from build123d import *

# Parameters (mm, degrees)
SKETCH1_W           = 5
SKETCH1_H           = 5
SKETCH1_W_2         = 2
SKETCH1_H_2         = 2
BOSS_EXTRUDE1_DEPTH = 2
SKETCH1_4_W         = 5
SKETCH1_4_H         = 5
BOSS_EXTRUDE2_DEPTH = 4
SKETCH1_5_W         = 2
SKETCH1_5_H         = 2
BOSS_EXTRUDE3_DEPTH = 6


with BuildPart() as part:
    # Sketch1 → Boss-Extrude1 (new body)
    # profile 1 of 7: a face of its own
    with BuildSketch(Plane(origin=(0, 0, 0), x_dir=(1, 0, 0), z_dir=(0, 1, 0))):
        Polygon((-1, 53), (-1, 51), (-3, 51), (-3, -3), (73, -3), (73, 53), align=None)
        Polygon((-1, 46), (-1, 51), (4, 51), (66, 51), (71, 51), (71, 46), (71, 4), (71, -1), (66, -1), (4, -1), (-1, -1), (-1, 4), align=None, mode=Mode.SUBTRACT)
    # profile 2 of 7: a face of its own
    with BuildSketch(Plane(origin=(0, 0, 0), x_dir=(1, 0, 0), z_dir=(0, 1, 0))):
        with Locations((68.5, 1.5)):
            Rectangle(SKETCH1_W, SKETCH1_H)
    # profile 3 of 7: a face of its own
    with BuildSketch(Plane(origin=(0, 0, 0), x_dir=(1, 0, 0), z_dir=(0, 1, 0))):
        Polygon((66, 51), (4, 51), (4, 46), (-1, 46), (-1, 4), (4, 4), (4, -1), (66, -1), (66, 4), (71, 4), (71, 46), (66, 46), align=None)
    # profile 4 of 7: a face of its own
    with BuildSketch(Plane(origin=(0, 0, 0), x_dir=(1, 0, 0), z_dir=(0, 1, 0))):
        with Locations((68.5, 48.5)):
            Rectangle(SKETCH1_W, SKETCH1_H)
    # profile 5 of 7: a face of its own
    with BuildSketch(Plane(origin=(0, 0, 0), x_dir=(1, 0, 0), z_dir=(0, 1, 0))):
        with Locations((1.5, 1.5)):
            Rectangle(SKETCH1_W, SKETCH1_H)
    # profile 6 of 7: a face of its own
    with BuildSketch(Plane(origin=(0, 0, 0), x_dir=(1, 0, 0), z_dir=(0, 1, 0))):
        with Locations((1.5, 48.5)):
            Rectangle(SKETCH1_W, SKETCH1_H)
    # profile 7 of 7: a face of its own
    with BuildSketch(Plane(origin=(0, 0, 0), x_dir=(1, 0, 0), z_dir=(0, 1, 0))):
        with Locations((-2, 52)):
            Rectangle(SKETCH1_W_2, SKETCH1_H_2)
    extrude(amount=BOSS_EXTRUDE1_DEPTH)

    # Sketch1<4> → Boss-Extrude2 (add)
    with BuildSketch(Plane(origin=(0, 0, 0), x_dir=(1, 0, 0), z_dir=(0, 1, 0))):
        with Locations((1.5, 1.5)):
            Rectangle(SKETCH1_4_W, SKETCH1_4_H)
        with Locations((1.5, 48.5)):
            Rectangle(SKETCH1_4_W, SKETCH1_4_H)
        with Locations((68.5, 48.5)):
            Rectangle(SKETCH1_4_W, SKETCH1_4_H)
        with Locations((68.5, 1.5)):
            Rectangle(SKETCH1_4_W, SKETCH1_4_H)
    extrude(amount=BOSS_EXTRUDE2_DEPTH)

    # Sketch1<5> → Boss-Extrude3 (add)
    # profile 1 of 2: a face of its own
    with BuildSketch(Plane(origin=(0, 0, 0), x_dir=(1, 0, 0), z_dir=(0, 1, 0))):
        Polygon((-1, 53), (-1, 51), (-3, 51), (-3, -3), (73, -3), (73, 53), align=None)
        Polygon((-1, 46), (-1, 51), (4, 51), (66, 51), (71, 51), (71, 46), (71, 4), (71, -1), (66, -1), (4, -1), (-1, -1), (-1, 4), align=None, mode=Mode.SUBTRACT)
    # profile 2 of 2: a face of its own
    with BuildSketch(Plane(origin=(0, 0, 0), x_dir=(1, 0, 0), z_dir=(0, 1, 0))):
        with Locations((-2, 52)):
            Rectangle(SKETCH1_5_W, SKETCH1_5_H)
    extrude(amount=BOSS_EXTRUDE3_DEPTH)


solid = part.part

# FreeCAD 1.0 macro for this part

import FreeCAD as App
import Part
import Sketcher
from FreeCAD import Vector

doc = App.newDocument("Part")
body = doc.addObject("PartDesign::Body", "Body")

# Sketch on XZ plane
sketch1 = body.newObject("Sketcher::SketchObject", "Sketch")
sketch1.AttachmentSupport = (doc.getObject("XZ_Plane"), [""])
sketch1.MapMode = "FlatFace"
sketch1.addGeometry([
    Part.LineSegment(Vector(73, 3, 0), Vector(73, -53, 0)),
    Part.LineSegment(Vector(73, -53, 0), Vector(-3, -53, 0)),
    Part.LineSegment(Vector(-3, -53, 0), Vector(-3, 3, 0)),
    Part.LineSegment(Vector(-3, 3, 0), Vector(73, 3, 0)),
], False)
sketch1.addConstraint([
    Sketcher.Constraint("Coincident", 0, 2, 1, 1),
    Sketcher.Constraint("Coincident", 1, 2, 2, 1),
    Sketcher.Constraint("Coincident", 2, 2, 3, 1),
    Sketcher.Constraint("Coincident", 3, 2, 0, 1),
    Sketcher.Constraint("Vertical", 0),
    Sketcher.Constraint("Horizontal", 1),
    Sketcher.Constraint("Vertical", 2),
    Sketcher.Constraint("Horizontal", 3),
    Sketcher.Constraint("DistanceX", 1, 2, 1, 1, 76.0),
    Sketcher.Constraint("DistanceY", 0, 2, 0, 1, 56.0),
    Sketcher.Constraint("DistanceX", -1, 1, 0, 2, 73.0),
    Sketcher.Constraint("DistanceY", 0, 2, -1, 1, 53.0),
])
pad1 = body.newObject("PartDesign::Pad", "Pad")
pad1.Profile = sketch1
pad1.Length = 2
pad1.Reversed = True

# Sketch on XZ plane
sketch2 = body.newObject("Sketcher::SketchObject", "Sketch001")
sketch2.AttachmentSupport = (doc.getObject("XZ_Plane"), [""])
sketch2.MapMode = "FlatFace"
sketch2.addGeometry([
    Part.LineSegment(Vector(-1, -4, 0), Vector(-1, 1, 0)),  # 0
    Part.LineSegment(Vector(-1, 1, 0), Vector(4, 1, 0)),  # 1
    Part.LineSegment(Vector(4, 1, 0), Vector(4, -4, 0)),  # 2
    Part.LineSegment(Vector(4, -4, 0), Vector(-1, -4, 0)),  # 3
    Part.LineSegment(Vector(-1, -51, 0), Vector(-1, -46, 0)),  # 4
    Part.LineSegment(Vector(-1, -46, 0), Vector(4, -46, 0)),  # 5
    Part.LineSegment(Vector(4, -46, 0), Vector(4, -51, 0)),  # 6
    Part.LineSegment(Vector(4, -51, 0), Vector(-1, -51, 0)),  # 7
    Part.LineSegment(Vector(66, -51, 0), Vector(66, -46, 0)),  # 8
    Part.LineSegment(Vector(66, -46, 0), Vector(71, -46, 0)),  # 9
    Part.LineSegment(Vector(71, -46, 0), Vector(71, -51, 0)),  # 10
    Part.LineSegment(Vector(71, -51, 0), Vector(66, -51, 0)),  # 11
    Part.LineSegment(Vector(66, -4, 0), Vector(66, 1, 0)),  # 12
    Part.LineSegment(Vector(66, 1, 0), Vector(71, 1, 0)),  # 13
    Part.LineSegment(Vector(71, 1, 0), Vector(71, -4, 0)),  # 14
    Part.LineSegment(Vector(71, -4, 0), Vector(66, -4, 0)),  # 15
], False)
sketch2.addConstraint([
    Sketcher.Constraint("Coincident", 0, 2, 1, 1),
    Sketcher.Constraint("Coincident", 1, 2, 2, 1),
    Sketcher.Constraint("Coincident", 2, 2, 3, 1),
    Sketcher.Constraint("Coincident", 3, 2, 0, 1),
    Sketcher.Constraint("Coincident", 4, 2, 5, 1),
    Sketcher.Constraint("Coincident", 5, 2, 6, 1),
    Sketcher.Constraint("Coincident", 6, 2, 7, 1),
    Sketcher.Constraint("Coincident", 7, 2, 4, 1),
    Sketcher.Constraint("Coincident", 8, 2, 9, 1),
    Sketcher.Constraint("Coincident", 9, 2, 10, 1),
    Sketcher.Constraint("Coincident", 10, 2, 11, 1),
    Sketcher.Constraint("Coincident", 11, 2, 8, 1),
    Sketcher.Constraint("Coincident", 12, 2, 13, 1),
    Sketcher.Constraint("Coincident", 13, 2, 14, 1),
    Sketcher.Constraint("Coincident", 14, 2, 15, 1),
    Sketcher.Constraint("Coincident", 15, 2, 12, 1),
    Sketcher.Constraint("Vertical", 0),
    Sketcher.Constraint("Horizontal", 1),
    Sketcher.Constraint("Vertical", 2),
    Sketcher.Constraint("Horizontal", 3),
    Sketcher.Constraint("Vertical", 4),
    Sketcher.Constraint("Horizontal", 5),
    Sketcher.Constraint("Vertical", 6),
    Sketcher.Constraint("Horizontal", 7),
    Sketcher.Constraint("Vertical", 8),
    Sketcher.Constraint("Horizontal", 9),
    Sketcher.Constraint("Vertical", 10),
    Sketcher.Constraint("Horizontal", 11),
    Sketcher.Constraint("Vertical", 12),
    Sketcher.Constraint("Horizontal", 13),
    Sketcher.Constraint("Vertical", 14),
    Sketcher.Constraint("Horizontal", 15),
    Sketcher.Constraint("Horizontal", 5, 2, 8, 2),
    Sketcher.Constraint("Horizontal", 7, 2, 10, 2),
    Sketcher.Constraint("Horizontal", 1, 2, 12, 2),
    Sketcher.Constraint("Horizontal", 3, 2, 14, 2),
    Sketcher.Constraint("Vertical", 3, 2, 4, 2),
    Sketcher.Constraint("Vertical", 2, 2, 5, 2),
    Sketcher.Constraint("Vertical", 11, 2, 12, 2),
    Sketcher.Constraint("Vertical", 10, 2, 13, 2),
    Sketcher.Constraint("Equal", 7, 9),
    Sketcher.Constraint("Equal", 15, 0),
    Sketcher.Constraint("Equal", 2, 4),
    Sketcher.Constraint("DistanceX", 1, 1, 1, 2, 5.0),
    Sketcher.Constraint("DistanceX", 0, 2, -1, 1, 1.0),
    Sketcher.Constraint("DistanceY", -1, 1, 0, 2, 1.0),
    Sketcher.Constraint("DistanceY", 4, 2, -1, 1, 46.0),
    Sketcher.Constraint("DistanceX", -1, 1, 8, 2, 66.0),
])
pad2 = body.newObject("PartDesign::Pad", "Pad001")
pad2.Profile = sketch2
pad2.Length = 4
pad2.Reversed = True

# Sketch on XZ plane
sketch3 = body.newObject("Sketcher::SketchObject", "Sketch002")
sketch3.AttachmentSupport = (doc.getObject("XZ_Plane"), [""])
sketch3.MapMode = "FlatFace"
sketch3.addGeometry([
    Part.LineSegment(Vector(73, 3, 0), Vector(73, -53, 0)),  # 0
    Part.LineSegment(Vector(73, -53, 0), Vector(-3, -53, 0)),  # 1
    Part.LineSegment(Vector(-3, -53, 0), Vector(-3, 3, 0)),  # 2
    Part.LineSegment(Vector(-3, 3, 0), Vector(73, 3, 0)),  # 3
    Part.LineSegment(Vector(-1, 1, 0), Vector(-1, -51, 0)),  # 4
    Part.LineSegment(Vector(-1, -51, 0), Vector(71, -51, 0)),  # 5
    Part.LineSegment(Vector(71, -51, 0), Vector(71, 1, 0)),  # 6
    Part.LineSegment(Vector(71, 1, 0), Vector(-1, 1, 0)),  # 7
], False)
sketch3.addConstraint([
    Sketcher.Constraint("Coincident", 0, 2, 1, 1),
    Sketcher.Constraint("Coincident", 1, 2, 2, 1),
    Sketcher.Constraint("Coincident", 2, 2, 3, 1),
    Sketcher.Constraint("Coincident", 3, 2, 0, 1),
    Sketcher.Constraint("Coincident", 4, 2, 5, 1),
    Sketcher.Constraint("Coincident", 5, 2, 6, 1),
    Sketcher.Constraint("Coincident", 6, 2, 7, 1),
    Sketcher.Constraint("Coincident", 7, 2, 4, 1),
    Sketcher.Constraint("Vertical", 0),
    Sketcher.Constraint("Horizontal", 1),
    Sketcher.Constraint("Vertical", 2),
    Sketcher.Constraint("Horizontal", 3),
    Sketcher.Constraint("Vertical", 4),
    Sketcher.Constraint("Horizontal", 5),
    Sketcher.Constraint("Vertical", 6),
    Sketcher.Constraint("Horizontal", 7),
    Sketcher.Constraint("DistanceX", 1, 2, 1, 1, 76.0),
    Sketcher.Constraint("DistanceX", 5, 1, 5, 2, 72.0),
    Sketcher.Constraint("DistanceY", 0, 2, 0, 1, 56.0),
    Sketcher.Constraint("DistanceY", 4, 2, 4, 1, 52.0),
    Sketcher.Constraint("DistanceX", -1, 1, 0, 2, 73.0),
    Sketcher.Constraint("DistanceY", 0, 2, -1, 1, 53.0),
    Sketcher.Constraint("DistanceX", 4, 2, -1, 1, 1.0),
    Sketcher.Constraint("DistanceY", 4, 2, -1, 1, 51.0),
])
pad3 = body.newObject("PartDesign::Pad", "Pad002")
pad3.Profile = sketch3
pad3.Length = 6
pad3.Reversed = True

doc.recompute()
